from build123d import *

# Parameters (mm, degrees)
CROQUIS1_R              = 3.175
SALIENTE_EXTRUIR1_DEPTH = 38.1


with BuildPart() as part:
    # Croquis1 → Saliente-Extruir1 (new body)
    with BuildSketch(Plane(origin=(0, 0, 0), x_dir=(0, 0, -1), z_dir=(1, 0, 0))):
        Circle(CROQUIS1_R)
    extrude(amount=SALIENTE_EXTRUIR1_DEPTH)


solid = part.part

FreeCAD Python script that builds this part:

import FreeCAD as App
import Part
import Sketcher
from FreeCAD import Vector
Q = App.Units.Quantity

doc = App.newDocument("Part")
body = doc.addObject("PartDesign::Body", "Body")

sketch1 = body.newObject("Sketcher::SketchObject", "Sketch")
sketch1.AttachmentSupport = (doc.getObject("YZ_Plane"), [""])
sketch1.MapMode = "FlatFace"
sketch1.addGeometry(Part.Circle(Vector(0, 0, 0), Vector(0, 0, 1), 3.175), False)
sketch1.addConstraint(Sketcher.Constraint("Coincident", 0, 3, -1, 1))
sketch1.addConstraint(Sketcher.Constraint("Diameter", 0, Q("0.25 in")))
pad1 = body.newObject("PartDesign::Pad", "Pad")
pad1.Profile = sketch1
pad1.Length = Q("1.5 in")

doc.recompute()
